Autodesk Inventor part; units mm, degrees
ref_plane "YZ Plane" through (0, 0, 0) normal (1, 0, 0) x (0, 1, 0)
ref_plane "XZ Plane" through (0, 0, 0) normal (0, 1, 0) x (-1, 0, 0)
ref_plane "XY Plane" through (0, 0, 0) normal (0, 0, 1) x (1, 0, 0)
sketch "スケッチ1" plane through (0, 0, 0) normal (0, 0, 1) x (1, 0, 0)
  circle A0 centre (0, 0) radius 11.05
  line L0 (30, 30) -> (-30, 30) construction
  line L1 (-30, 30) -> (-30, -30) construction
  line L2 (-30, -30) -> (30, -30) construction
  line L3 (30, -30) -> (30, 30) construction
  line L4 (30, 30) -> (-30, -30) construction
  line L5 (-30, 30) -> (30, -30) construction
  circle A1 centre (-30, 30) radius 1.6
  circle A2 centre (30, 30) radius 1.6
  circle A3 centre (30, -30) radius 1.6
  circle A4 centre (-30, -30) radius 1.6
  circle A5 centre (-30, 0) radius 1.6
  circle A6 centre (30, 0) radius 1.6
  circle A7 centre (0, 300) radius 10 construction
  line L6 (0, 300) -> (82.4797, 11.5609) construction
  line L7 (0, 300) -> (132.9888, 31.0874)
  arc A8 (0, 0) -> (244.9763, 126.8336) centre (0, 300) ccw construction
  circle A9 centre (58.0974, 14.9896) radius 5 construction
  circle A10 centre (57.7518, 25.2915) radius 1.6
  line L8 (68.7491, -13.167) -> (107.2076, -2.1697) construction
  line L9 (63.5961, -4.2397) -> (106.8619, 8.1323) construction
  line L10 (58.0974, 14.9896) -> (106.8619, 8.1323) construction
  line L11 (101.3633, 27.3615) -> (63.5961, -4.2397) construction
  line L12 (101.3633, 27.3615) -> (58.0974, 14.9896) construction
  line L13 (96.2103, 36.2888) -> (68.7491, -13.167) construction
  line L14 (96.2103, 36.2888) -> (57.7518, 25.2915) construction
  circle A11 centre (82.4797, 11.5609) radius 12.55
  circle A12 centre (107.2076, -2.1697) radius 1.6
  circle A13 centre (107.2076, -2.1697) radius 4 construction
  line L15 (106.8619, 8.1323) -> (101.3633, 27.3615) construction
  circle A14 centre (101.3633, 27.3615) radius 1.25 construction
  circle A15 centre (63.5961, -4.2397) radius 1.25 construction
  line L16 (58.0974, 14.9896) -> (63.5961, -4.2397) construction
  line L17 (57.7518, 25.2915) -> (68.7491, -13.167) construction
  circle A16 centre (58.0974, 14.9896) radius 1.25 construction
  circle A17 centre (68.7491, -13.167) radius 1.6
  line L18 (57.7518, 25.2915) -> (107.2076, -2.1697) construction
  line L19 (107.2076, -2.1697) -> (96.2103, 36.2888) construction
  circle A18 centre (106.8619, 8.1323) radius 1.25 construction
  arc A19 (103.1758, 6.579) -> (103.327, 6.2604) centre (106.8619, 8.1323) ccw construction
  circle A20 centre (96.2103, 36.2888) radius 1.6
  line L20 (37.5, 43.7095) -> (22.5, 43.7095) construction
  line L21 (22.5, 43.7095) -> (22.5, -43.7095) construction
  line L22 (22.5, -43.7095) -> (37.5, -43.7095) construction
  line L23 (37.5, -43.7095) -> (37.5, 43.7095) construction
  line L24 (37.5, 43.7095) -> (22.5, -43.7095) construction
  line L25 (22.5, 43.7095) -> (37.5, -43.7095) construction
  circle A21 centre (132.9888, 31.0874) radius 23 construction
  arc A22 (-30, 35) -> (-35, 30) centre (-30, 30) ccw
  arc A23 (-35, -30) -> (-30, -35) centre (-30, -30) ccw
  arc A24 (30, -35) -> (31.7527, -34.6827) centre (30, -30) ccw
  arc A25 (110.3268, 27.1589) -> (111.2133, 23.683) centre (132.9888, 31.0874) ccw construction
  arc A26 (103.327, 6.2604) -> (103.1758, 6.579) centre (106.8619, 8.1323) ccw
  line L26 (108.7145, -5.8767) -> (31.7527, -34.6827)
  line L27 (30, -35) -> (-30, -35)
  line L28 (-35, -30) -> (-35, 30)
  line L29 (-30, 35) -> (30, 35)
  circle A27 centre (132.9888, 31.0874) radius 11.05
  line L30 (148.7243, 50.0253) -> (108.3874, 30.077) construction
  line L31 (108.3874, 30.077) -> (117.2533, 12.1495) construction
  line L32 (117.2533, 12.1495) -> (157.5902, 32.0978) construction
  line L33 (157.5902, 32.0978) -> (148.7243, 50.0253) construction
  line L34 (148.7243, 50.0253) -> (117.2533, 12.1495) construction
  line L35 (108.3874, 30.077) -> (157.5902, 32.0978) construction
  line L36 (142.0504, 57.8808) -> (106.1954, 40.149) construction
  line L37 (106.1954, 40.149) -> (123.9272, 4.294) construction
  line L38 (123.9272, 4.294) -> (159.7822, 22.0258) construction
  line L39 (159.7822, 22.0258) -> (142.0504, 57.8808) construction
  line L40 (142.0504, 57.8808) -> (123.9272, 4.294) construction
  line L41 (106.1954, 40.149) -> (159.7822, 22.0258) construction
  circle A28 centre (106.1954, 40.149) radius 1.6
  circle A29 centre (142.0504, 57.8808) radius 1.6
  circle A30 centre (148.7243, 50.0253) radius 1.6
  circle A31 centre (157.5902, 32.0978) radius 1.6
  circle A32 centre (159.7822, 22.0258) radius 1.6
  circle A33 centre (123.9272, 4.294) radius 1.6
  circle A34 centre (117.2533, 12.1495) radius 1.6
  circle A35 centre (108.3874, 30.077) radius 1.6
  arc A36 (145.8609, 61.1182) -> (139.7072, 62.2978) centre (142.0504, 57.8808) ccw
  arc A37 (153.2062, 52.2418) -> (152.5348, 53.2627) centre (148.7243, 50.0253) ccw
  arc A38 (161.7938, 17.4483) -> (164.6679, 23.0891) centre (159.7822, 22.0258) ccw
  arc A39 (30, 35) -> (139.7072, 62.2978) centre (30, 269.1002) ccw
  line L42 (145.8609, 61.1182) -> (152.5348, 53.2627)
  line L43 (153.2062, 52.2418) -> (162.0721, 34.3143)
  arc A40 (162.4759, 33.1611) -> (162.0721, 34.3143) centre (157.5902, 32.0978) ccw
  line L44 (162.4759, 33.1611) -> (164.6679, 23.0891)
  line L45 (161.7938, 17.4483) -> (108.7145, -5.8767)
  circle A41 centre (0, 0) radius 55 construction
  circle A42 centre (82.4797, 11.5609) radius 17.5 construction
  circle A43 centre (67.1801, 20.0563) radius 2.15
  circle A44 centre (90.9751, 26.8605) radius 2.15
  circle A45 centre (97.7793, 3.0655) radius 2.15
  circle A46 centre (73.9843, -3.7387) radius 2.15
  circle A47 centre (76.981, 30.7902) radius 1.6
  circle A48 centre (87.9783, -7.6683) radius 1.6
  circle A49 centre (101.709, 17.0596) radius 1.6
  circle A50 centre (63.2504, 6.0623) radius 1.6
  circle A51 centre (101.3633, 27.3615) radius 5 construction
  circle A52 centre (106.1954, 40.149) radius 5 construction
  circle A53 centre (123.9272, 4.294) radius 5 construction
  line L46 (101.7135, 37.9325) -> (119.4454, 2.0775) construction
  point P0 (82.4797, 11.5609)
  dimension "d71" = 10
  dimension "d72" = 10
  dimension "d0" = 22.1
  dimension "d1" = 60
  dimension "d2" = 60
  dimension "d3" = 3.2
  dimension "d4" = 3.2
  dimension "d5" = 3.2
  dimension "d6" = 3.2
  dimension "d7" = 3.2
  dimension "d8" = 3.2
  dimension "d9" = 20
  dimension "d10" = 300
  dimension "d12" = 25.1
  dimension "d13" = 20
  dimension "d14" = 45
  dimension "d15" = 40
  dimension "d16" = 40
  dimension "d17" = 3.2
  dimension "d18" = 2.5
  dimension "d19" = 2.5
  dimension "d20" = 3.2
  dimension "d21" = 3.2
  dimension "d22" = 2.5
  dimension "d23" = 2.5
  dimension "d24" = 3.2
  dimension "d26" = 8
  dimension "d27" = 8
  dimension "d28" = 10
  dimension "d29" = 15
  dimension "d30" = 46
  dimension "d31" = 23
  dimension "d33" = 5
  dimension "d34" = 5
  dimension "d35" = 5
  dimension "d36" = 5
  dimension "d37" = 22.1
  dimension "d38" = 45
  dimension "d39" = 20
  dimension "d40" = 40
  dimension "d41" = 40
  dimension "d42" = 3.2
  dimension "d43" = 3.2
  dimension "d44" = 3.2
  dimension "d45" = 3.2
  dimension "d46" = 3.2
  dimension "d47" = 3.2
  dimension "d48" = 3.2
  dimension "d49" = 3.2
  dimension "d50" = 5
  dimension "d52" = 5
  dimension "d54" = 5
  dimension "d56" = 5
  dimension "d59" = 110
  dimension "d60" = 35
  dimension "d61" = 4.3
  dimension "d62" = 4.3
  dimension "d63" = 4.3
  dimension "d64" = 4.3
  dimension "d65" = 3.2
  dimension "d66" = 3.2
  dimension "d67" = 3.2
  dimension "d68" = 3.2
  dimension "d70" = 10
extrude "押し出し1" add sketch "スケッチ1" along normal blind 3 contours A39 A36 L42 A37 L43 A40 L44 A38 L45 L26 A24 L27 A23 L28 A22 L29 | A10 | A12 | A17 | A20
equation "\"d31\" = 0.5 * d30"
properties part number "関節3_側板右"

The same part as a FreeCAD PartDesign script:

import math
import FreeCAD as App
import Part
import Sketcher
from FreeCAD import Vector
Q = App.Units.Quantity

doc = App.newDocument("Part")
body = doc.addObject("PartDesign::Body", "Body")

# Sketch on XY plane
sketch1 = doc.addObject("Sketcher::SketchObject", "Sketch")
body.addObject(sketch1)
sketch1.AttachmentSupport = (doc.XY_Plane, [""])
sketch1.MapMode = "FlatFace"
sketch1.addGeometry(Part.ArcOfCircle(Part.Circle(Vector(30, 269.1, 0), Vector(0, 0, 1), 234.1), math.radians(-66.92), math.radians(-62.05)), False)
sketch1.addGeometry(Part.ArcOfCircle(Part.Circle(Vector(30, 269.1, 0), Vector(0, 0, 1), 234.1), math.radians(-90), math.radians(-67)), False)
sketch1.addGeometry(Part.LineSegment(Vector(30, 35, 0), Vector(-30, 35, 0)), False)
sketch1.addGeometry(Part.ArcOfCircle(Part.Circle(Vector(-30, 30, 0), Vector(0, 0, 1), 5), math.radians(90), math.radians(180)), False)
sketch1.addGeometry(Part.LineSegment(Vector(-35, 30, 0), Vector(-35, -30, 0)), False)
sketch1.addGeometry(Part.ArcOfCircle(Part.Circle(Vector(-30, -30, 0), Vector(0, 0, 1), 5), math.radians(180), math.radians(270)), False)
sketch1.addGeometry(Part.LineSegment(Vector(-30, -35, 0), Vector(30, -35, 0)), False)
sketch1.addGeometry(Part.ArcOfCircle(Part.Circle(Vector(30, -30, 0), Vector(0, 0, 1), 5), math.radians(-90), math.radians(-69)), False)
sketch1.addGeometry(Part.LineSegment(Vector(31.8, -34.7, 0), Vector(108.7, -5.9, 0)), False)
sketch1.addGeometry(Part.LineSegment(Vector(108.7, -5.9, 0), Vector(161.8, 17.4, 0)), False)
sketch1.addGeometry(Part.ArcOfCircle(Part.Circle(Vector(159.8, 22, 0), Vector(0, 0, 1), 5), math.radians(-66), math.radians(12)), False)
sketch1.addGeometry(Part.LineSegment(Vector(164.7, 23.1, 0), Vector(162.5, 33.2, 0)), False)
sketch1.addGeometry(Part.ArcOfCircle(Part.Circle(Vector(157.6, 32.1, 0), Vector(0, 0, 1), 5), math.radians(12.28), math.radians(26.32)), False)
sketch1.addGeometry(Part.LineSegment(Vector(162.1, 34.3, 0), Vector(153.2, 52.2, 0)), False)
sketch1.addGeometry(Part.ArcOfCircle(Part.Circle(Vector(148.7, 50, 0), Vector(0, 0, 1), 5), math.radians(26.32), math.radians(40.35)), False)
sketch1.addGeometry(Part.LineSegment(Vector(152.5, 53.3, 0), Vector(145.9, 61.1, 0)), False)
sketch1.addGeometry(Part.ArcOfCircle(Part.Circle(Vector(142.1, 57.9, 0), Vector(0, 0, 1), 5), math.radians(40), math.radians(118)), False)
sketch1.addGeometry(Part.Circle(Vector(-30, -30, 0), Vector(0, 0, 1), 1.6), False)
sketch1.addGeometry(Part.Circle(Vector(30, -30, 0), Vector(0, 0, 1), 1.6), False)
sketch1.addGeometry(Part.Circle(Vector(-30, 0, 0), Vector(0, 0, 1), 1.6), False)
sketch1.addGeometry(Part.Circle(Vector(0, 0, 0), Vector(0, 0, 1), 11.1), False)
sketch1.addGeometry(Part.Circle(Vector(30, 0, 0), Vector(0, 0, 1), 1.6), False)
sketch1.addGeometry(Part.Circle(Vector(63.3, 6.1, 0), Vector(0, 0, 1), 1.6), False)
sketch1.addGeometry(Part.Circle(Vector(88, -7.7, 0), Vector(0, 0, 1), 1.6), False)
sketch1.addGeometry(Part.Circle(Vector(74, -3.7, 0), Vector(0, 0, 1), 2.1), False)
sketch1.addGeometry(Part.Circle(Vector(82.5, 11.6, 0), Vector(0, 0, 1), 12.6), False)
sketch1.addGeometry(Part.Circle(Vector(97.8, 3.1, 0), Vector(0, 0, 1), 2.1), False)
sketch1.addGeometry(Part.Circle(Vector(123.9, 4.3, 0), Vector(0, 0, 1), 1.6), False)
sketch1.addGeometry(Part.Circle(Vector(117.3, 12.1, 0), Vector(0, 0, 1), 1.6), False)
sketch1.addGeometry(Part.Circle(Vector(-30, 30, 0), Vector(0, 0, 1), 1.6), False)
sketch1.addGeometry(Part.Circle(Vector(30, 30, 0), Vector(0, 0, 1), 1.6), False)
sketch1.addGeometry(Part.Circle(Vector(67.2, 20.1, 0), Vector(0, 0, 1), 2.1), False)
sketch1.addGeometry(Part.Circle(Vector(101.7, 17.1, 0), Vector(0, 0, 1), 1.6), False)
sketch1.addGeometry(Part.Circle(Vector(77, 30.8, 0), Vector(0, 0, 1), 1.6), False)
sketch1.addGeometry(Part.Circle(Vector(91, 26.9, 0), Vector(0, 0, 1), 2.1), False)
sketch1.addGeometry(Part.Circle(Vector(108.4, 30.1, 0), Vector(0, 0, 1), 1.6), False)
sketch1.addGeometry(Part.Circle(Vector(159.8, 22, 0), Vector(0, 0, 1), 1.6), False)
sketch1.addGeometry(Part.Circle(Vector(133, 31.1, 0), Vector(0, 0, 1), 11.1), False)
sketch1.addGeometry(Part.Circle(Vector(157.6, 32.1, 0), Vector(0, 0, 1), 1.6), False)
sketch1.addGeometry(Part.Circle(Vector(106.2, 40.1, 0), Vector(0, 0, 1), 1.6), False)
sketch1.addGeometry(Part.Circle(Vector(148.7, 50, 0), Vector(0, 0, 1), 1.6), False)
sketch1.addGeometry(Part.Circle(Vector(142.1, 57.9, 0), Vector(0, 0, 1), 1.6), False)
sketch1.addConstraint(Sketcher.Constraint("Tangent", 0, 1, 1, 2))
sketch1.addConstraint(Sketcher.Constraint("Tangent", 1, 1, 2, 1))
sketch1.addConstraint(Sketcher.Constraint("Tangent", 2, 2, 3, 1))
sketch1.addConstraint(Sketcher.Constraint("Tangent", 3, 2, 4, 1))
sketch1.addConstraint(Sketcher.Constraint("Tangent", 4, 2, 5, 1))
sketch1.addConstraint(Sketcher.Constraint("Tangent", 5, 2, 6, 1))
sketch1.addConstraint(Sketcher.Constraint("Tangent", 6, 2, 7, 1))
sketch1.addConstraint(Sketcher.Constraint("Tangent", 7, 2, 8, 1))
sketch1.addConstraint(Sketcher.Constraint("Coincident", 8, 2, 9, 1))
sketch1.addConstraint(Sketcher.Constraint("Tangent", 9, 2, 10, 1))
sketch1.addConstraint(Sketcher.Constraint("Tangent", 10, 2, 11, 1))
sketch1.addConstraint(Sketcher.Constraint("Tangent", 11, 2, 12, 1))
sketch1.addConstraint(Sketcher.Constraint("Tangent", 12, 2, 13, 1))
sketch1.addConstraint(Sketcher.Constraint("Tangent", 13, 2, 14, 1))
sketch1.addConstraint(Sketcher.Constraint("Tangent", 14, 2, 15, 1))
sketch1.addConstraint(Sketcher.Constraint("Tangent", 15, 2, 16, 1))
sketch1.addConstraint(Sketcher.Constraint("Tangent", 16, 2, 0, 2))
sketch1.addConstraint(Sketcher.Constraint("Horizontal", 2))
sketch1.addConstraint(Sketcher.Constraint("Vertical", 4))
sketch1.addConstraint(Sketcher.Constraint("Horizontal", 6))
sketch1.addConstraint(Sketcher.Constraint("Coincident", 20, 3, -1, 1))
sketch1.addConstraint(Sketcher.Constraint("Coincident", 17, 3, 5, 3))
sketch1.addConstraint(Sketcher.Constraint("Coincident", 29, 3, 3, 3))
sketch1.addConstraint(Sketcher.Constraint("Coincident", 36, 3, 10, 3))
sketch1.addConstraint(Sketcher.Constraint("Coincident", 41, 3, 16, 3))
sketch1.addConstraint(Sketcher.Constraint("Equal", 0, 1))
sketch1.addConstraint(Sketcher.Constraint("Equal", 3, 5))
sketch1.addConstraint(Sketcher.Constraint("Equal", 5, 10))
sketch1.addConstraint(Sketcher.Constraint("Equal", 10, 16))
sketch1.addConstraint(Sketcher.Constraint("Equal", 17, 18))
sketch1.addConstraint(Sketcher.Constraint("Equal", 18, 19))
sketch1.addConstraint(Sketcher.Constraint("Equal", 19, 21))
sketch1.addConstraint(Sketcher.Constraint("Equal", 21, 22))
sketch1.addConstraint(Sketcher.Constraint("Equal", 22, 23))
sketch1.addConstraint(Sketcher.Constraint("Equal", 24, 26))
sketch1.addConstraint(Sketcher.Constraint("Equal", 23, 27))
sketch1.addConstraint(Sketcher.Constraint("Equal", 27, 28))
sketch1.addConstraint(Sketcher.Constraint("Equal", 28, 29))
sketch1.addConstraint(Sketcher.Constraint("Equal", 29, 30))
sketch1.addConstraint(Sketcher.Constraint("Equal", 26, 31))
sketch1.addConstraint(Sketcher.Constraint("Equal", 30, 32))
sketch1.addConstraint(Sketcher.Constraint("Equal", 32, 33))
sketch1.addConstraint(Sketcher.Constraint("Equal", 31, 34))
sketch1.addConstraint(Sketcher.Constraint("Equal", 33, 35))
sketch1.addConstraint(Sketcher.Constraint("Equal", 35, 36))
sketch1.addConstraint(Sketcher.Constraint("Equal", 20, 37))
sketch1.addConstraint(Sketcher.Constraint("Equal", 36, 38))
sketch1.addConstraint(Sketcher.Constraint("Equal", 38, 39))
sketch1.addConstraint(Sketcher.Constraint("Equal", 39, 40))
sketch1.addConstraint(Sketcher.Constraint("Equal", 40, 41))
sketch1.addConstraint(Sketcher.Constraint("Symmetric", 3, 3, 18, 3, -1, 1))
sketch1.addConstraint(Sketcher.Constraint("Symmetric", 19, 3, 21, 3, -1, 1))
sketch1.addConstraint(Sketcher.Constraint("Symmetric", 5, 3, 30, 3, -1, 1))
sketch1.addConstraint(Sketcher.Constraint("Symmetric", 1, 1, 5, 2, -1, 1))
sketch1.addConstraint(Sketcher.Constraint("PointOnObject", 19, 3, -1))
sketch1.addConstraint(Sketcher.Constraint("Vertical", 1, 3, 7, 3))
sketch1.addConstraint(Sketcher.Constraint("Vertical", 17, 3, 19, 3))
sketch1.addConstraint(Sketcher.Constraint("Equal", 6, 4))
sketch1.addConstraint(Sketcher.Constraint("Equal", 11, 15))
sketch1.addConstraint(Sketcher.Constraint("Radius", 3, 5.0))
sketch1.addConstraint(Sketcher.Constraint("Diameter", 17, 3.2))
sketch1.addConstraint(Sketcher.Constraint("Diameter", 20, 22.1))
sketch1.addConstraint(Sketcher.Constraint("Diameter", 24, 4.3))
sketch1.addConstraint(Sketcher.Constraint("Diameter", 25, 25.1))
sketch1.addConstraint(Sketcher.Constraint("DistanceX", 2, 2, 2, 1, 60.0))
sketch1.addConstraint(Sketcher.Constraint("Distance", 13, 20.0))
sketch1.addConstraint(Sketcher.Constraint("Angle", 8, Q("20.5204 deg")))
sketch1.addConstraint(Sketcher.Constraint("Angle", 15, Q("130.3507 deg")))
sketch1.addConstraint(Sketcher.Constraint("Radius", 0, 234.1002))
sketch1.addConstraint(Sketcher.Constraint("Radius", 7, 4.9989))
sketch1.addConstraint(Sketcher.Constraint("Radius", 12, 4.9976))
sketch1.addConstraint(Sketcher.Constraint("Radius", 14, 5.0025))
sketch1.addConstraint(Sketcher.Constraint("DistanceX", -1, 1, 31, 3, 67.18))
sketch1.addConstraint(Sketcher.Constraint("DistanceX", 14, 3, 10, 3, 11.06))
sketch1.addConstraint(Sketcher.Constraint("DistanceY", 28, 3, 32, 3, 4.91))
sketch1.addConstraint(Sketcher.Constraint("DistanceX", 10, 3, 12, 2, 2.29))
sketch1.addConstraint(Sketcher.Constraint("Distance", 8, 82.176))
sketch1.addConstraint(Sketcher.Constraint("DistanceY", -1, 1, 14, 3, 50.024))
sketch1.addConstraint(Sketcher.Constraint("DistanceY", -1, 1, 25, 3, 11.561))
sketch1.addConstraint(Sketcher.Constraint("DistanceY", -1, 1, 27, 3, 4.294))
sketch1.addConstraint(Sketcher.Constraint("DistanceX", -1, 1, 32, 3, 101.709))
sketch1.addConstraint(Sketcher.Constraint("DistanceX", -1, 1, 33, 3, 76.981))
sketch1.addConstraint(Sketcher.Constraint("DistanceX", -1, 1, 34, 3, 90.975))
sketch1.addConstraint(Sketcher.Constraint("DistanceY", -1, 1, 35, 3, 30.077))
sketch1.addConstraint(Sketcher.Constraint("DistanceY", -1, 1, 39, 3, 40.149))
sketch1.addConstraint(Sketcher.Constraint("DistanceY", -1, 1, 10, 2, 23.089))
sketch1.addConstraint(Sketcher.Constraint("DistanceX", 22, 3, 23, 3, 24.728))
sketch1.addConstraint(Sketcher.Constraint("DistanceX", 23, 3, 10, 3, 71.804))
sketch1.addConstraint(Sketcher.Constraint("DistanceY", 23, 3, 10, 3, 29.694))
sketch1.addConstraint(Sketcher.Constraint("DistanceX", 24, 3, 23, 3, 13.994))
sketch1.addConstraint(Sketcher.Constraint("DistanceY", 24, 3, 22, 3, 9.801))
sketch1.addConstraint(Sketcher.Constraint("DistanceX", 23, 3, 26, 3, 9.801))
sketch1.addConstraint(Sketcher.Constraint("DistanceX", 26, 3, 27, 3, 26.148))
sketch1.addConstraint(Sketcher.Constraint("DistanceX", 28, 3, 27, 3, 6.674))
sketch1.addConstraint(Sketcher.Constraint("DistanceY", 26, 3, 28, 3, 9.084))
sketch1.addConstraint(Sketcher.Constraint("DistanceY", 22, 3, 31, 3, 13.994))
sketch1.addConstraint(Sketcher.Constraint("DistanceY", 23, 3, 32, 3, 24.728))
sketch1.addConstraint(Sketcher.Constraint("DistanceY", 31, 3, 33, 3, 10.734))
sketch1.addConstraint(Sketcher.Constraint("DistanceY", 32, 3, 34, 3, 9.801))
sketch1.addConstraint(Sketcher.Constraint("DistanceX", 35, 3, 28, 3, 8.866))
sketch1.addConstraint(Sketcher.Constraint("DistanceY", 28, 3, 37, 3, 18.938))
sketch1.addConstraint(Sketcher.Constraint("DistanceX", 38, 3, 10, 3, 2.192))
sketch1.addConstraint(Sketcher.Constraint("DistanceY", 10, 3, 38, 3, 10.072))
sketch1.addConstraint(Sketcher.Constraint("DistanceX", 39, 3, 35, 3, 2.192))
sketch1.addConstraint(Sketcher.Constraint("DistanceX", 16, 3, 40, 3, 6.674))
sketch1.addConstraint(Sketcher.Constraint("DistanceY", 37, 3, 40, 3, 18.938))
sketch1.addConstraint(Sketcher.Constraint("DistanceX", 39, 3, 0, 1, 15.589))
sketch1.addConstraint(Sketcher.Constraint("DistanceX", 37, 3, 9, 2, 28.805))
sketch1.addConstraint(Sketcher.Constraint("DistanceY", -1, 1, 22, 3, 6.0623))
sketch1.addConstraint(Sketcher.Constraint("DistanceX", -1, 1, 25, 3, 82.4797))
pad1 = doc.addObject("PartDesign::Pad", "Pad")
body.addObject(pad1)
pad1.Profile = sketch1
pad1.Length = 3

doc.recompute()
